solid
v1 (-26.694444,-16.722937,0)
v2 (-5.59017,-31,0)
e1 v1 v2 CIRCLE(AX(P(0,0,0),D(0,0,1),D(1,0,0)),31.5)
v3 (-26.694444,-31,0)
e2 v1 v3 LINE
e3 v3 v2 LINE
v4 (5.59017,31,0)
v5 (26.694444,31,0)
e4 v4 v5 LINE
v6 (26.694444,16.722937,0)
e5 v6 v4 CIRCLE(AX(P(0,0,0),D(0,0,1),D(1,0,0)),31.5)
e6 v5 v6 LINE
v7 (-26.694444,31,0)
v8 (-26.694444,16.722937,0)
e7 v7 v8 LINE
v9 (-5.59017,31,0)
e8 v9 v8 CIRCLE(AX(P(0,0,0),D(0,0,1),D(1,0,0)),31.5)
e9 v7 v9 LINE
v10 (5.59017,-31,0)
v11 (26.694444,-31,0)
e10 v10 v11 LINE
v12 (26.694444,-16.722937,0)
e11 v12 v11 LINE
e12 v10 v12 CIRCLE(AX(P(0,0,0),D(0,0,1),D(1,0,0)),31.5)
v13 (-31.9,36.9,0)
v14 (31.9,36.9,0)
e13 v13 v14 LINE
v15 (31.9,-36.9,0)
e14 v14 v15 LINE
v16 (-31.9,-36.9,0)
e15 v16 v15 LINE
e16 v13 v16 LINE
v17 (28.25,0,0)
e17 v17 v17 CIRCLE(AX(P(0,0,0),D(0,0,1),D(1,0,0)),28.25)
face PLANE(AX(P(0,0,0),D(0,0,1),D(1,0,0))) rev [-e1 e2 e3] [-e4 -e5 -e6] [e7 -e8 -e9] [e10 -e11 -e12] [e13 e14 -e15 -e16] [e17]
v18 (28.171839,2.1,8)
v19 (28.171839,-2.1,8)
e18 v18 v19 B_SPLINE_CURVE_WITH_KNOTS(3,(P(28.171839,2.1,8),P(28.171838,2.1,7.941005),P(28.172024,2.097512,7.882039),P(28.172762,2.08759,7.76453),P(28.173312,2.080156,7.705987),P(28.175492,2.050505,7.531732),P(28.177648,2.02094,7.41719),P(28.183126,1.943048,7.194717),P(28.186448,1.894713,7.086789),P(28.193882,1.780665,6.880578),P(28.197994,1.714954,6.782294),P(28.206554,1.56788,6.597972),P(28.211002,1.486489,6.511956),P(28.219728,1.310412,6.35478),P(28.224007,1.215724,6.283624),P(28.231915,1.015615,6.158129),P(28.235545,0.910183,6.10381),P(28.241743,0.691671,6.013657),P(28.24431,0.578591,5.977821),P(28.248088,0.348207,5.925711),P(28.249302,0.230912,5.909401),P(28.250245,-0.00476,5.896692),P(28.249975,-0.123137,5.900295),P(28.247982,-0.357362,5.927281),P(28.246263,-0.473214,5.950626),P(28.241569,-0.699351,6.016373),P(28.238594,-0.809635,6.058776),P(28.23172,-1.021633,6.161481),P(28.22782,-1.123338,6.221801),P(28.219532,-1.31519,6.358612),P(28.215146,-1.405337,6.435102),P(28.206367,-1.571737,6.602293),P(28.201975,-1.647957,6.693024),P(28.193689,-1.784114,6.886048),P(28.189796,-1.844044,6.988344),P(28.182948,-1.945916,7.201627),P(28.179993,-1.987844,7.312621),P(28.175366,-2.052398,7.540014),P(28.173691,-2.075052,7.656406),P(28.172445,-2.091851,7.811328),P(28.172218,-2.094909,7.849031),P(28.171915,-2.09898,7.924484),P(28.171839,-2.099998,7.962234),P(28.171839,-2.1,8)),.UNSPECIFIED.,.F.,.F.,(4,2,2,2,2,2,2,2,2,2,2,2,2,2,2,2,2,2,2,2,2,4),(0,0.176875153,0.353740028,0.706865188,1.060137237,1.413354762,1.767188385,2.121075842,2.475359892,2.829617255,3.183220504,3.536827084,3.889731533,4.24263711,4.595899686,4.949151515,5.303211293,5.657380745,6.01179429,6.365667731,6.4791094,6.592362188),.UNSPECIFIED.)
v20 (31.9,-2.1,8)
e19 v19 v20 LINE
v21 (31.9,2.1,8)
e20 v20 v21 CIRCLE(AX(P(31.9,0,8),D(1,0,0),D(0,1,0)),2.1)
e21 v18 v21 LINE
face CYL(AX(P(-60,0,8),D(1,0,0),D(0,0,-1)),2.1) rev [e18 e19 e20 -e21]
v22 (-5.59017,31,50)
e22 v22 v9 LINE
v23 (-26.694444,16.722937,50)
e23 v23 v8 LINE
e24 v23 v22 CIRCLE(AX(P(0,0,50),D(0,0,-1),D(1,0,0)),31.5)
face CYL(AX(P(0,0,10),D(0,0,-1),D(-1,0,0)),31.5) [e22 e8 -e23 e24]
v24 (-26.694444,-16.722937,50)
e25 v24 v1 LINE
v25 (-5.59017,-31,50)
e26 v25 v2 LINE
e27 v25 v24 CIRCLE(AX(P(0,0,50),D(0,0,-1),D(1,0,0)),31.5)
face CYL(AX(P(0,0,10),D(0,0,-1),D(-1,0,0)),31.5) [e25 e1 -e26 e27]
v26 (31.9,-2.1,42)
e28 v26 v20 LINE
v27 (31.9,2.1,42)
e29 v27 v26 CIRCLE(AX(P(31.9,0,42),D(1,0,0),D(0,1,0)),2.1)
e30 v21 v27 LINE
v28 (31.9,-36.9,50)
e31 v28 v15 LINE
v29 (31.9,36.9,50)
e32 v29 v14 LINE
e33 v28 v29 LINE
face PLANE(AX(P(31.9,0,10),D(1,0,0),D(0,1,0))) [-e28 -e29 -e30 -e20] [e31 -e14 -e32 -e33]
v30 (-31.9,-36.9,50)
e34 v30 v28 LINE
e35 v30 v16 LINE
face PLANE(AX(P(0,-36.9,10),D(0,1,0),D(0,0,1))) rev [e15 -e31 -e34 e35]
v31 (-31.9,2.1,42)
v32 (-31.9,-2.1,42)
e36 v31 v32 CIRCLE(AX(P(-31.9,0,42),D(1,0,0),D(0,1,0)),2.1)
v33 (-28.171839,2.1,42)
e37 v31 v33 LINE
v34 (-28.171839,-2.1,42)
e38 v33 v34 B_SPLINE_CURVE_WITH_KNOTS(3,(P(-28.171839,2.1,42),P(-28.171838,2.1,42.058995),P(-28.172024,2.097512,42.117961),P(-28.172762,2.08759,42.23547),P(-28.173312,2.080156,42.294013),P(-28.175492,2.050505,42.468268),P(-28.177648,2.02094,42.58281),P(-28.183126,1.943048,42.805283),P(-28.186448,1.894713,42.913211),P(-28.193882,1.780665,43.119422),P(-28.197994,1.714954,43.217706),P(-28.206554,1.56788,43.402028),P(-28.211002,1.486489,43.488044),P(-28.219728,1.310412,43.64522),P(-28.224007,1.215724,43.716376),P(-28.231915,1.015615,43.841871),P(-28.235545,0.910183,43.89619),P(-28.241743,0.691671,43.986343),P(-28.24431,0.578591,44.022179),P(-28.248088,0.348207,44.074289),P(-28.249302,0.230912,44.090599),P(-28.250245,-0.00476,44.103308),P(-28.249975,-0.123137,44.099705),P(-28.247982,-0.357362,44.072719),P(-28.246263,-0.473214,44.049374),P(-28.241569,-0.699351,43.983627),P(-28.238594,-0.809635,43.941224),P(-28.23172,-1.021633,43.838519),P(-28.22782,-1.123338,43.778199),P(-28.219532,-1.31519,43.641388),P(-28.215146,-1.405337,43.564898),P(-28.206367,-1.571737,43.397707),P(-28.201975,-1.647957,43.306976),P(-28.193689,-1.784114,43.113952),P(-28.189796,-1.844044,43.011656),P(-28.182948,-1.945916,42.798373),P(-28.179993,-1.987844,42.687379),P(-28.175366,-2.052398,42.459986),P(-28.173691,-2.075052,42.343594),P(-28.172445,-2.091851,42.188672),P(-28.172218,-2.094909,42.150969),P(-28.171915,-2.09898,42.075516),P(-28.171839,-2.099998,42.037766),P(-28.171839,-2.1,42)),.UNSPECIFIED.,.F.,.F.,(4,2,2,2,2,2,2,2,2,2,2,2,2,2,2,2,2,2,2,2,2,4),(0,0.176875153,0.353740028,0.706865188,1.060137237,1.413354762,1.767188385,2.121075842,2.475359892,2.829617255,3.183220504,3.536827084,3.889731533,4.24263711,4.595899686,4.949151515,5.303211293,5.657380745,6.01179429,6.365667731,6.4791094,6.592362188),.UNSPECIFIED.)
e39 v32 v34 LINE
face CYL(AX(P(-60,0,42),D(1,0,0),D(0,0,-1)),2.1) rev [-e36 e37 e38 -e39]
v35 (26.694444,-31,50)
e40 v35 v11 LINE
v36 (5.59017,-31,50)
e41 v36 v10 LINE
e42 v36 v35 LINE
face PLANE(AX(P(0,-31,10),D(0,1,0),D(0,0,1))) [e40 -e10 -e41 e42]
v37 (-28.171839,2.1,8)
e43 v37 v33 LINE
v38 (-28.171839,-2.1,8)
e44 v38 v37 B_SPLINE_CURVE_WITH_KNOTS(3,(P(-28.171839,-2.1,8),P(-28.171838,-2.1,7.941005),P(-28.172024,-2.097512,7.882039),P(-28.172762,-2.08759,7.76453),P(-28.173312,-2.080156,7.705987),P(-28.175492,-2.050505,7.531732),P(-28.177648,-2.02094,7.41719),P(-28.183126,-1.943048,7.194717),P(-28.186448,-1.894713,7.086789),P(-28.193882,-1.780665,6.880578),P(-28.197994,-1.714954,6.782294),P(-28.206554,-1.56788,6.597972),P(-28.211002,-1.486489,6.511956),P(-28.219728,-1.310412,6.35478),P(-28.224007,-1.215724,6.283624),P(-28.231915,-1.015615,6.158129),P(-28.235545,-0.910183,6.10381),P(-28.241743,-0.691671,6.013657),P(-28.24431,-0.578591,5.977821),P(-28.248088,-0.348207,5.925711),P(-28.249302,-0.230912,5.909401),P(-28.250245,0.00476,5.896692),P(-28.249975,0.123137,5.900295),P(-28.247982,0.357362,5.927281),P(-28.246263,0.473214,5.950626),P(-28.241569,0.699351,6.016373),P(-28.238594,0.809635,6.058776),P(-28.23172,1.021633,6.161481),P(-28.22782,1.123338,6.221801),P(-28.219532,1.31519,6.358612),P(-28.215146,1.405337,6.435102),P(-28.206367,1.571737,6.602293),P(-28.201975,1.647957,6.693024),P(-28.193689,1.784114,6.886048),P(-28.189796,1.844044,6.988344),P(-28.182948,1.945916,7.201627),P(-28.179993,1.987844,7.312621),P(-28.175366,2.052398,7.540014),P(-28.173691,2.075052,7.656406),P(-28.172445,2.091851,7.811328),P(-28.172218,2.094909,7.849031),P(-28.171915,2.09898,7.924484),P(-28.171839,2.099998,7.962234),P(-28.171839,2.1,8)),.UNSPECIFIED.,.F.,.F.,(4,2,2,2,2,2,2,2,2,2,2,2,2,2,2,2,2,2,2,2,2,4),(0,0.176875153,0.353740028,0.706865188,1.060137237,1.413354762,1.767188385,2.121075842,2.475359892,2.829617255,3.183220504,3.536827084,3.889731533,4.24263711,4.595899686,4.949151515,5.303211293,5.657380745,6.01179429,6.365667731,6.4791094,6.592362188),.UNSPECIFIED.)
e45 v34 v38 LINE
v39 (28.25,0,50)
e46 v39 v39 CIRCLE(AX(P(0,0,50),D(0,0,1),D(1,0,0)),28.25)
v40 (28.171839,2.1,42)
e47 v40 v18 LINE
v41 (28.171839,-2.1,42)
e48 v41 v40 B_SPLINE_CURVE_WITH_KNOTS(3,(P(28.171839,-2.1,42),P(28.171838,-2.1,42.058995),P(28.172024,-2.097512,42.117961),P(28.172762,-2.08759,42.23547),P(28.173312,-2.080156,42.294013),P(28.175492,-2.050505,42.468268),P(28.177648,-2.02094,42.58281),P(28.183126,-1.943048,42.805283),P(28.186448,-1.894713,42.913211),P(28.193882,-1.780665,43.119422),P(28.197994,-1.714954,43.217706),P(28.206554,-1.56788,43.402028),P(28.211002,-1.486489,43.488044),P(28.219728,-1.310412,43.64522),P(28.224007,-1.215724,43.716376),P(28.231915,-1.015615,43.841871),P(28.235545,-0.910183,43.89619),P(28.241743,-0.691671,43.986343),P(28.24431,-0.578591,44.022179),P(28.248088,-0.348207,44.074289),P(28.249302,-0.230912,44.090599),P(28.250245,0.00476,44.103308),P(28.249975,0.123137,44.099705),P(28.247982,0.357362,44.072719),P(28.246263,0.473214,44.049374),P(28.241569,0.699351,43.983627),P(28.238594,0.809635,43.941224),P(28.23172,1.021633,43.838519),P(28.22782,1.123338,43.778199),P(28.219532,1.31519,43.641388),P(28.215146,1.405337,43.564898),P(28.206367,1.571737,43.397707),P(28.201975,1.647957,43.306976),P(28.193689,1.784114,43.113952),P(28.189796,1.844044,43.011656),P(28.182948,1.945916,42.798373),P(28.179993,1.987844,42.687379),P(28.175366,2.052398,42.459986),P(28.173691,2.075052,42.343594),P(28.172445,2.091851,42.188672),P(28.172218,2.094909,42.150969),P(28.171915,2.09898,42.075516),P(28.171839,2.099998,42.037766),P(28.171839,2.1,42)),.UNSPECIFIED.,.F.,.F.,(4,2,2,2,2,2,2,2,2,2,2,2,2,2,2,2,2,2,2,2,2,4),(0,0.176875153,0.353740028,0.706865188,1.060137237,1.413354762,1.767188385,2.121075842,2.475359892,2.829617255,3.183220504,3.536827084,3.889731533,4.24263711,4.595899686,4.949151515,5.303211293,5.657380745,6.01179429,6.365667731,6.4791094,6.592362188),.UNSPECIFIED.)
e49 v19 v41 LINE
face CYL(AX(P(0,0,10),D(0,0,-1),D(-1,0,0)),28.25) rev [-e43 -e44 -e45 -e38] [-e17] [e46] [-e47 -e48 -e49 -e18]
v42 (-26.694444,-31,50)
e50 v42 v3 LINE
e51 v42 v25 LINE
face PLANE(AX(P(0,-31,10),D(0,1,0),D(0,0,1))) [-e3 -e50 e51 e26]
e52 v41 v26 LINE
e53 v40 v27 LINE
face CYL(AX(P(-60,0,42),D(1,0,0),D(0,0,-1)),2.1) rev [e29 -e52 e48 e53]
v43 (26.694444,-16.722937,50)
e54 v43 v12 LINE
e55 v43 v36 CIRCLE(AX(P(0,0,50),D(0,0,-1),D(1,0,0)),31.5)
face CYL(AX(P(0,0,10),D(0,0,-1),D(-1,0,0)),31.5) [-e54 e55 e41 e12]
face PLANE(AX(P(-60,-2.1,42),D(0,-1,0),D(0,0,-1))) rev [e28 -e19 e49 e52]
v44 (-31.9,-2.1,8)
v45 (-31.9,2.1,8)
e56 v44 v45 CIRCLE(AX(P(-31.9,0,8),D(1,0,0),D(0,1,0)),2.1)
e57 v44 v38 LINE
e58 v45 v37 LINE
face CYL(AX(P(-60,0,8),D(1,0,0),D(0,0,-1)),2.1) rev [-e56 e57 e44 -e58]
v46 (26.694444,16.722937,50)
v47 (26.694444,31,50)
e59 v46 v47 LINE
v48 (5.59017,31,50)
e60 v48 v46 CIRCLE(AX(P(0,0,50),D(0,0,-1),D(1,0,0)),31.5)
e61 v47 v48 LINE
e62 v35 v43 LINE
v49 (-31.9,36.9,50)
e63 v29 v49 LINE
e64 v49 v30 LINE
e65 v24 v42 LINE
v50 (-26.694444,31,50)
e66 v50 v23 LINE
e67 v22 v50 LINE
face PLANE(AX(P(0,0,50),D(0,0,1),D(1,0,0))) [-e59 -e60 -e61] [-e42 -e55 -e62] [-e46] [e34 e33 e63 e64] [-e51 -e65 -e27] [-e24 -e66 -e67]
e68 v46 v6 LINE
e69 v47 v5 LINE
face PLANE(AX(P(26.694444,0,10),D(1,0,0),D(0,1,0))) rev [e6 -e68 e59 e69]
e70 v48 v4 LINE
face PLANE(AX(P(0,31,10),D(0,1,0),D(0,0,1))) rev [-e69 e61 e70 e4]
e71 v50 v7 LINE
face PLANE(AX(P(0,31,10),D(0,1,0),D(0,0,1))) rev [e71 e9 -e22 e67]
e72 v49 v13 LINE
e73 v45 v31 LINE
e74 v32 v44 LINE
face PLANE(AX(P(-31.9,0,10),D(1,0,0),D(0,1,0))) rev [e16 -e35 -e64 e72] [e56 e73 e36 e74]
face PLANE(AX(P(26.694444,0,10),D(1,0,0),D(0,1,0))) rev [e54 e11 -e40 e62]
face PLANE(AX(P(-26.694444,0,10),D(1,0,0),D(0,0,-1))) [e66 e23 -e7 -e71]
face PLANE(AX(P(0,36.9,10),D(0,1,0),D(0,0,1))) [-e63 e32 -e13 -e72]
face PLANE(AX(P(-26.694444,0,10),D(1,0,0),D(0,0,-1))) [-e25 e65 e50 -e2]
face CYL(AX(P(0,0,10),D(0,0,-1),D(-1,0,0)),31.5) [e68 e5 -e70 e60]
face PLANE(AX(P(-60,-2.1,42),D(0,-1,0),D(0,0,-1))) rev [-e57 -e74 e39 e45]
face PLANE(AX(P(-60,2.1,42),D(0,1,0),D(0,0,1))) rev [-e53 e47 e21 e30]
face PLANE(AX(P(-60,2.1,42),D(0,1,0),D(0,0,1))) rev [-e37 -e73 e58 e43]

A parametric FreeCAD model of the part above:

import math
import FreeCAD as App
import Part
import Sketcher

V = App.Vector
Q = App.Units.Quantity


def add_polygon(sketch, points):
    """Adds a closed chain of lines whose ends are joined by coincident constraints."""
    first, n = sketch.GeometryCount, len(points)
    for a, b in zip(points, points[1:] + points[:1]):
        sketch.addGeometry(Part.LineSegment(App.Vector(*a, 0), App.Vector(*b, 0)), False)
    for i in range(n):
        sketch.addConstraint(Sketcher.Constraint("Coincident", first + i, 2, first + (i + 1) % n, 1))

doc = App.newDocument("Part")
body = doc.addObject("PartDesign::Body", "Body")

sketch1 = body.newObject("Sketcher::SketchObject", "Sketch")
sketch1.AttachmentSupport = (doc.getObject("XY_Plane"), [""])
sketch1.MapMode = "FlatFace"
add_polygon(sketch1, [(-32, 37), (-32, -37), (32, -37), (32, 37)])
sketch1.addGeometry(Part.LineSegment(V(-27, -31, 0), V(-27, -17, 0)), False)
sketch1.addGeometry(Part.ArcOfCircle(Part.Circle(V(0, 0, 0), V(0, 0, 1), 31), math.radians(-148), math.radians(-100)), False)
sketch1.addGeometry(Part.LineSegment(V(-6, -31, 0), V(-27, -31, 0)), False)
sketch1.addGeometry(Part.LineSegment(V(27, -31, 0), V(6, -31, 0)), False)
sketch1.addGeometry(Part.ArcOfCircle(Part.Circle(V(0, 0, 0), V(0, 0, 1), 31), math.radians(-80), math.radians(-32)), False)
sketch1.addGeometry(Part.LineSegment(V(27, -17, 0), V(27, -31, 0)), False)
sketch1.addGeometry(Part.LineSegment(V(-27, 17, 0), V(-27, 31, 0)), False)
sketch1.addGeometry(Part.LineSegment(V(-27, 31, 0), V(-6, 31, 0)), False)
sketch1.addGeometry(Part.ArcOfCircle(Part.Circle(V(0, 0, 0), V(0, 0, 1), 31), math.radians(100), math.radians(148)), False)
sketch1.addGeometry(Part.Circle(V(0, 0, 0), V(0, 0, 1), 28), False)
sketch1.addGeometry(Part.ArcOfCircle(Part.Circle(V(0, 0, 0), V(0, 0, 1), 31), math.radians(32), math.radians(80)), False)
sketch1.addGeometry(Part.LineSegment(V(6, 31, 0), V(27, 31, 0)), False)
sketch1.addGeometry(Part.LineSegment(V(27, 31, 0), V(27, 17, 0)), False)
sketch1.addConstraint([
    Sketcher.Constraint("Coincident", 4, 2, 5, 1),
    Sketcher.Constraint("Coincident", 5, 2, 6, 1),
    Sketcher.Constraint("Coincident", 6, 2, 4, 1),
    Sketcher.Constraint("Coincident", 7, 2, 8, 1),
    Sketcher.Constraint("Coincident", 8, 2, 9, 1),
    Sketcher.Constraint("Coincident", 9, 2, 7, 1),
    Sketcher.Constraint("Coincident", 10, 2, 11, 1),
    Sketcher.Constraint("Coincident", 11, 2, 12, 1),
    Sketcher.Constraint("Coincident", 12, 2, 10, 1),
    Sketcher.Constraint("Coincident", 14, 2, 15, 1),
    Sketcher.Constraint("Coincident", 15, 2, 16, 1),
    Sketcher.Constraint("Coincident", 16, 2, 14, 1),
    Sketcher.Constraint("Vertical", 0),
    Sketcher.Constraint("Horizontal", 1),
    Sketcher.Constraint("Vertical", 2),
    Sketcher.Constraint("Horizontal", 3),
    Sketcher.Constraint("Vertical", 4),
    Sketcher.Constraint("Horizontal", 6),
    Sketcher.Constraint("Horizontal", 7),
    Sketcher.Constraint("Vertical", 9),
    Sketcher.Constraint("Vertical", 10),
    Sketcher.Constraint("Horizontal", 11),
    Sketcher.Constraint("Horizontal", 15),
    Sketcher.Constraint("Vertical", 16),
    Sketcher.Constraint("Coincident", 5, 3, -1, 1),
    Sketcher.Constraint("Coincident", 8, 3, -1, 1),
    Sketcher.Constraint("Coincident", 12, 3, -1, 1),
    Sketcher.Constraint("Coincident", 13, 3, -1, 1),
    Sketcher.Constraint("Coincident", 14, 3, -1, 1),
    Sketcher.Constraint("Equal", 5, 8),
    Sketcher.Constraint("Equal", 8, 12),
    Sketcher.Constraint("Equal", 12, 14),
    Sketcher.Constraint("Symmetric", 0, 2, 2, 2, -1, 1),
    Sketcher.Constraint("Symmetric", 9, 2, 10, 2, -1, 1),
    Sketcher.Constraint("Symmetric", 6, 2, 15, 2, -1, 1),
    Sketcher.Constraint("Symmetric", 6, 2, 9, 2, -2),
    Sketcher.Constraint("Diameter", 13, Q("56.5 mm")),
    Sketcher.Constraint("Radius", 5, Q("31.5 mm")),
    Sketcher.Constraint("DistanceX", 1, 1, 1, 2, Q("63.8 mm")),
    Sketcher.Constraint("DistanceY", 0, 2, 0, 1, Q("73.8 mm")),
    Sketcher.Constraint("DistanceY", 5, 2, -1, 1, Q("31 mm")),
    Sketcher.Constraint("DistanceX", 6, 2, 6, 1, Q("21.104274 mm")),
])
pad1 = body.newObject("PartDesign::Pad", "Pad")
pad1.Profile = sketch1
pad1.Length = 10

sketch2 = body.newObject("Sketcher::SketchObject", "Sketch001")
sketch2.AttachmentSupport = (doc.getObject("XY_Plane"), [""])
sketch2.MapMode = "FlatFace"
add_polygon(sketch2, [(-32, 37), (-32, -37), (32, -37), (32, 37)])
sketch2.addGeometry(Part.LineSegment(V(-27, -31, 0), V(-27, -17, 0)), False)
sketch2.addGeometry(Part.ArcOfCircle(Part.Circle(V(0, 0, 0), V(0, 0, 1), 31), math.radians(-148), math.radians(-100)), False)
sketch2.addGeometry(Part.LineSegment(V(-6, -31, 0), V(-27, -31, 0)), False)
sketch2.addGeometry(Part.LineSegment(V(27, -31, 0), V(6, -31, 0)), False)
sketch2.addGeometry(Part.ArcOfCircle(Part.Circle(V(0, 0, 0), V(0, 0, 1), 31), math.radians(-80), math.radians(-32)), False)
sketch2.addGeometry(Part.LineSegment(V(27, -17, 0), V(27, -31, 0)), False)
sketch2.addGeometry(Part.LineSegment(V(-27, 17, 0), V(-27, 31, 0)), False)
sketch2.addGeometry(Part.LineSegment(V(-27, 31, 0), V(-6, 31, 0)), False)
sketch2.addGeometry(Part.ArcOfCircle(Part.Circle(V(0, 0, 0), V(0, 0, 1), 31), math.radians(100), math.radians(148)), False)
sketch2.addGeometry(Part.Circle(V(0, 0, 0), V(0, 0, 1), 28), False)
sketch2.addGeometry(Part.ArcOfCircle(Part.Circle(V(0, 0, 0), V(0, 0, 1), 31), math.radians(32), math.radians(80)), False)
sketch2.addGeometry(Part.LineSegment(V(6, 31, 0), V(27, 31, 0)), False)
sketch2.addGeometry(Part.LineSegment(V(27, 31, 0), V(27, 17, 0)), False)
sketch2.addConstraint([
    Sketcher.Constraint("Coincident", 4, 2, 5, 1),
    Sketcher.Constraint("Coincident", 5, 2, 6, 1),
    Sketcher.Constraint("Coincident", 6, 2, 4, 1),
    Sketcher.Constraint("Coincident", 7, 2, 8, 1),
    Sketcher.Constraint("Coincident", 8, 2, 9, 1),
    Sketcher.Constraint("Coincident", 9, 2, 7, 1),
    Sketcher.Constraint("Coincident", 10, 2, 11, 1),
    Sketcher.Constraint("Coincident", 11, 2, 12, 1),
    Sketcher.Constraint("Coincident", 12, 2, 10, 1),
    Sketcher.Constraint("Coincident", 14, 2, 15, 1),
    Sketcher.Constraint("Coincident", 15, 2, 16, 1),
    Sketcher.Constraint("Coincident", 16, 2, 14, 1),
    Sketcher.Constraint("Vertical", 0),
    Sketcher.Constraint("Horizontal", 1),
    Sketcher.Constraint("Vertical", 2),
    Sketcher.Constraint("Horizontal", 3),
    Sketcher.Constraint("Vertical", 4),
    Sketcher.Constraint("Horizontal", 6),
    Sketcher.Constraint("Horizontal", 7),
    Sketcher.Constraint("Vertical", 9),
    Sketcher.Constraint("Vertical", 10),
    Sketcher.Constraint("Horizontal", 11),
    Sketcher.Constraint("Horizontal", 15),
    Sketcher.Constraint("Vertical", 16),
    Sketcher.Constraint("Coincident", 5, 3, -1, 1),
    Sketcher.Constraint("Coincident", 8, 3, -1, 1),
    Sketcher.Constraint("Coincident", 12, 3, -1, 1),
    Sketcher.Constraint("Coincident", 13, 3, -1, 1),
    Sketcher.Constraint("Coincident", 14, 3, -1, 1),
    Sketcher.Constraint("Equal", 5, 8),
    Sketcher.Constraint("Equal", 8, 12),
    Sketcher.Constraint("Equal", 12, 14),
    Sketcher.Constraint("Symmetric", 0, 2, 2, 2, -1, 1),
    Sketcher.Constraint("Symmetric", 9, 2, 10, 2, -1, 1),
    Sketcher.Constraint("Symmetric", 6, 2, 15, 2, -1, 1),
    Sketcher.Constraint("Symmetric", 6, 2, 9, 2, -2),
    Sketcher.Constraint("Diameter", 13, Q("56.5 mm")),
    Sketcher.Constraint("Radius", 5, Q("31.5 mm")),
    Sketcher.Constraint("DistanceX", 1, 1, 1, 2, Q("63.8 mm")),
    Sketcher.Constraint("DistanceY", 0, 2, 0, 1, Q("73.8 mm")),
    Sketcher.Constraint("DistanceY", 5, 2, -1, 1, Q("31 mm")),
    Sketcher.Constraint("DistanceX", 6, 2, 6, 1, Q("21.104274 mm")),
])
pad2 = body.newObject("PartDesign::Pad", "Pad001")
pad2.Profile = sketch2
pad2.Length = 50

sketch3 = body.newObject("Sketcher::SketchObject", "Sketch002")
sketch3.AttachmentSupport = (doc.getObject("YZ_Plane"), [""])
sketch3.MapMode = "FlatFace"
sketch3.AttachmentOffset = App.Placement(V(0, 0, 40), App.Rotation())
sketch3.addGeometry([
    Part.LineSegment(V(2.1, 8, 0), V(2.1, 42, 0)),
    Part.ArcOfCircle(Part.Circle(V(0, 42, 0), V(0, 0, 1), 2.1), math.radians(0), math.radians(180)),
    Part.LineSegment(V(-2.1, 42, 0), V(-2.1, 8, 0)),
    Part.ArcOfCircle(Part.Circle(V(0, 8, 0), V(0, 0, 1), 2.1), math.radians(180), math.radians(360)),
], False)
sketch3.addConstraint([
    Sketcher.Constraint("Tangent", 0, 2, 1, 1),
    Sketcher.Constraint("Tangent", 1, 2, 2, 1),
    Sketcher.Constraint("Tangent", 2, 2, 3, 1),
    Sketcher.Constraint("Tangent", 3, 2, 0, 1),
    Sketcher.Constraint("Vertical", 0),
    Sketcher.Constraint("Vertical", 2),
    Sketcher.Constraint("PointOnObject", 1, 3, -2),
    Sketcher.Constraint("Radius", 1, Q("2.1 mm")),
    Sketcher.Constraint("DistanceY", 0, 1, 0, 2, Q("34 mm")),
    Sketcher.Constraint("DistanceY", -1, 1, 1, 3, Q("42 mm")),
])
pocket1 = body.newObject("PartDesign::Pocket", "Pocket")
pocket1.Profile = sketch3
pocket1.Length = 100

doc.recompute()
